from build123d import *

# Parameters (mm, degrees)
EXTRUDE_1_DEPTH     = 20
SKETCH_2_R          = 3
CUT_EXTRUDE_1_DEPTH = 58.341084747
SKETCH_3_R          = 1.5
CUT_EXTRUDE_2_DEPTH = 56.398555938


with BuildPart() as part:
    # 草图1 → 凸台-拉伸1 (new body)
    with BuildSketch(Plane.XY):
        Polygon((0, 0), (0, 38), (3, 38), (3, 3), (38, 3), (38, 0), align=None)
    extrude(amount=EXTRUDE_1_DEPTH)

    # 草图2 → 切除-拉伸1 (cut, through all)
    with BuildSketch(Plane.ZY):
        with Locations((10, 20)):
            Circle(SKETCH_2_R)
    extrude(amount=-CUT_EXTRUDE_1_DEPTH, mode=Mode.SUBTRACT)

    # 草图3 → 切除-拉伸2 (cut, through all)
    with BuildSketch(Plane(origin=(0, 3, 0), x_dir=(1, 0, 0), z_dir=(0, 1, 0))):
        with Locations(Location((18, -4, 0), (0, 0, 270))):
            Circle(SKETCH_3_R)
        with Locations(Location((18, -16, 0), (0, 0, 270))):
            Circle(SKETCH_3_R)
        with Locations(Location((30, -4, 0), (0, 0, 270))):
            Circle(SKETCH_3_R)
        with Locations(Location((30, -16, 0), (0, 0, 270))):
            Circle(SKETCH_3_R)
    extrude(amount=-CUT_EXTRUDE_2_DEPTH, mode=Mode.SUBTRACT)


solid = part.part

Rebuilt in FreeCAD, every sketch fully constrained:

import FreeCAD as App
import Part
import Sketcher
from FreeCAD import Vector

doc = App.newDocument("Part")
body = doc.addObject("PartDesign::Body", "Body")

# Sketch on XY plane
sketch1 = doc.addObject("Sketcher::SketchObject", "Sketch")
body.addObject(sketch1)
sketch1.AttachmentSupport = (doc.XY_Plane, [""])
sketch1.MapMode = "FlatFace"
sketch1.addGeometry(Part.LineSegment(Vector(0, 38, 0), Vector(0, 0, 0)), False)
sketch1.addGeometry(Part.LineSegment(Vector(0, 0, 0), Vector(38, 0, 0)), False)
sketch1.addGeometry(Part.LineSegment(Vector(38, 0, 0), Vector(38, 3, 0)), False)
sketch1.addGeometry(Part.LineSegment(Vector(38, 3, 0), Vector(3, 3, 0)), False)
sketch1.addGeometry(Part.LineSegment(Vector(3, 3, 0), Vector(3, 38, 0)), False)
sketch1.addGeometry(Part.LineSegment(Vector(3, 38, 0), Vector(0, 38, 0)), False)
sketch1.addConstraint(Sketcher.Constraint("Coincident", 0, 2, 1, 1))
sketch1.addConstraint(Sketcher.Constraint("Coincident", 1, 2, 2, 1))
sketch1.addConstraint(Sketcher.Constraint("Coincident", 2, 2, 3, 1))
sketch1.addConstraint(Sketcher.Constraint("Coincident", 3, 2, 4, 1))
sketch1.addConstraint(Sketcher.Constraint("Coincident", 4, 2, 5, 1))
sketch1.addConstraint(Sketcher.Constraint("Coincident", 5, 2, 0, 1))
sketch1.addConstraint(Sketcher.Constraint("Vertical", 0))
sketch1.addConstraint(Sketcher.Constraint("Horizontal", 1))
sketch1.addConstraint(Sketcher.Constraint("Vertical", 2))
sketch1.addConstraint(Sketcher.Constraint("Horizontal", 3))
sketch1.addConstraint(Sketcher.Constraint("Vertical", 4))
sketch1.addConstraint(Sketcher.Constraint("Horizontal", 5))
sketch1.addConstraint(Sketcher.Constraint("Coincident", 0, 2, -1, 1))
sketch1.addConstraint(Sketcher.Constraint("Equal", 1, 0))
sketch1.addConstraint(Sketcher.Constraint("Equal", 5, 2))
sketch1.addConstraint(Sketcher.Constraint("DistanceX", 1, 1, 1, 2, 38.0))
sketch1.addConstraint(Sketcher.Constraint("DistanceX", 3, 2, 3, 1, 35.0))
pad1 = doc.addObject("PartDesign::Pad", "Pad")
body.addObject(pad1)
pad1.Profile = sketch1
pad1.Length = 20

# Sketch on YZ plane
sketch2 = doc.addObject("Sketcher::SketchObject", "Sketch001")
body.addObject(sketch2)
sketch2.AttachmentSupport = (doc.YZ_Plane, [""])
sketch2.MapMode = "FlatFace"
sketch2.addGeometry(Part.Circle(Vector(20, 10, 0), Vector(0, 0, 1), 3), False)
sketch2.addConstraint(Sketcher.Constraint("Diameter", 0, 6.0))
sketch2.addConstraint(Sketcher.Constraint("DistanceX", -1, 1, 0, 3, 20.0))
sketch2.addConstraint(Sketcher.Constraint("DistanceY", -1, 1, 0, 3, 10.0))
pocket1 = doc.addObject("PartDesign::Pocket", "Pocket")
body.addObject(pocket1)
pocket1.Profile = sketch2
pocket1.Type = "ThroughAll"
pocket1.Reversed = True

# Sketch on XZ plane
sketch3 = doc.addObject("Sketcher::SketchObject", "Sketch002")
body.addObject(sketch3)
sketch3.AttachmentSupport = (doc.XZ_Plane, [""])
sketch3.MapMode = "FlatFace"
sketch3.AttachmentOffset = App.Placement(Vector(0, 0, -3), App.Rotation())
sketch3.addGeometry(Part.Circle(Vector(18, 4, 0), Vector(0, 0, 1), 1.5), False)
sketch3.addGeometry(Part.Circle(Vector(18, 16, 0), Vector(0, 0, 1), 1.5), False)
sketch3.addGeometry(Part.Circle(Vector(30, 4, 0), Vector(0, 0, 1), 1.5), False)
sketch3.addGeometry(Part.Circle(Vector(30, 16, 0), Vector(0, 0, 1), 1.5), False)
sketch3.addConstraint(Sketcher.Constraint("Equal", 0, 1))
sketch3.addConstraint(Sketcher.Constraint("Equal", 1, 2))
sketch3.addConstraint(Sketcher.Constraint("Equal", 2, 3))
sketch3.addConstraint(Sketcher.Constraint("Horizontal", 0, 3, 2, 3))
sketch3.addConstraint(Sketcher.Constraint("Horizontal", 1, 3, 3, 3))
sketch3.addConstraint(Sketcher.Constraint("Vertical", 0, 3, 1, 3))
sketch3.addConstraint(Sketcher.Constraint("Vertical", 2, 3, 3, 3))
sketch3.addConstraint(Sketcher.Constraint("Diameter", 0, 3.0))
sketch3.addConstraint(Sketcher.Constraint("DistanceX", -1, 1, 0, 3, 18.0))
sketch3.addConstraint(Sketcher.Constraint("DistanceY", -1, 1, 0, 3, 4.0))
sketch3.addConstraint(Sketcher.Constraint("DistanceY", -1, 1, 1, 3, 16.0))
sketch3.addConstraint(Sketcher.Constraint("DistanceX", -1, 1, 2, 3, 30.0))
pocket2 = doc.addObject("PartDesign::Pocket", "Pocket001")
body.addObject(pocket2)
pocket2.Profile = sketch3
pocket2.Type = "ThroughAll"
pocket2.Reversed = True

doc.recompute()
